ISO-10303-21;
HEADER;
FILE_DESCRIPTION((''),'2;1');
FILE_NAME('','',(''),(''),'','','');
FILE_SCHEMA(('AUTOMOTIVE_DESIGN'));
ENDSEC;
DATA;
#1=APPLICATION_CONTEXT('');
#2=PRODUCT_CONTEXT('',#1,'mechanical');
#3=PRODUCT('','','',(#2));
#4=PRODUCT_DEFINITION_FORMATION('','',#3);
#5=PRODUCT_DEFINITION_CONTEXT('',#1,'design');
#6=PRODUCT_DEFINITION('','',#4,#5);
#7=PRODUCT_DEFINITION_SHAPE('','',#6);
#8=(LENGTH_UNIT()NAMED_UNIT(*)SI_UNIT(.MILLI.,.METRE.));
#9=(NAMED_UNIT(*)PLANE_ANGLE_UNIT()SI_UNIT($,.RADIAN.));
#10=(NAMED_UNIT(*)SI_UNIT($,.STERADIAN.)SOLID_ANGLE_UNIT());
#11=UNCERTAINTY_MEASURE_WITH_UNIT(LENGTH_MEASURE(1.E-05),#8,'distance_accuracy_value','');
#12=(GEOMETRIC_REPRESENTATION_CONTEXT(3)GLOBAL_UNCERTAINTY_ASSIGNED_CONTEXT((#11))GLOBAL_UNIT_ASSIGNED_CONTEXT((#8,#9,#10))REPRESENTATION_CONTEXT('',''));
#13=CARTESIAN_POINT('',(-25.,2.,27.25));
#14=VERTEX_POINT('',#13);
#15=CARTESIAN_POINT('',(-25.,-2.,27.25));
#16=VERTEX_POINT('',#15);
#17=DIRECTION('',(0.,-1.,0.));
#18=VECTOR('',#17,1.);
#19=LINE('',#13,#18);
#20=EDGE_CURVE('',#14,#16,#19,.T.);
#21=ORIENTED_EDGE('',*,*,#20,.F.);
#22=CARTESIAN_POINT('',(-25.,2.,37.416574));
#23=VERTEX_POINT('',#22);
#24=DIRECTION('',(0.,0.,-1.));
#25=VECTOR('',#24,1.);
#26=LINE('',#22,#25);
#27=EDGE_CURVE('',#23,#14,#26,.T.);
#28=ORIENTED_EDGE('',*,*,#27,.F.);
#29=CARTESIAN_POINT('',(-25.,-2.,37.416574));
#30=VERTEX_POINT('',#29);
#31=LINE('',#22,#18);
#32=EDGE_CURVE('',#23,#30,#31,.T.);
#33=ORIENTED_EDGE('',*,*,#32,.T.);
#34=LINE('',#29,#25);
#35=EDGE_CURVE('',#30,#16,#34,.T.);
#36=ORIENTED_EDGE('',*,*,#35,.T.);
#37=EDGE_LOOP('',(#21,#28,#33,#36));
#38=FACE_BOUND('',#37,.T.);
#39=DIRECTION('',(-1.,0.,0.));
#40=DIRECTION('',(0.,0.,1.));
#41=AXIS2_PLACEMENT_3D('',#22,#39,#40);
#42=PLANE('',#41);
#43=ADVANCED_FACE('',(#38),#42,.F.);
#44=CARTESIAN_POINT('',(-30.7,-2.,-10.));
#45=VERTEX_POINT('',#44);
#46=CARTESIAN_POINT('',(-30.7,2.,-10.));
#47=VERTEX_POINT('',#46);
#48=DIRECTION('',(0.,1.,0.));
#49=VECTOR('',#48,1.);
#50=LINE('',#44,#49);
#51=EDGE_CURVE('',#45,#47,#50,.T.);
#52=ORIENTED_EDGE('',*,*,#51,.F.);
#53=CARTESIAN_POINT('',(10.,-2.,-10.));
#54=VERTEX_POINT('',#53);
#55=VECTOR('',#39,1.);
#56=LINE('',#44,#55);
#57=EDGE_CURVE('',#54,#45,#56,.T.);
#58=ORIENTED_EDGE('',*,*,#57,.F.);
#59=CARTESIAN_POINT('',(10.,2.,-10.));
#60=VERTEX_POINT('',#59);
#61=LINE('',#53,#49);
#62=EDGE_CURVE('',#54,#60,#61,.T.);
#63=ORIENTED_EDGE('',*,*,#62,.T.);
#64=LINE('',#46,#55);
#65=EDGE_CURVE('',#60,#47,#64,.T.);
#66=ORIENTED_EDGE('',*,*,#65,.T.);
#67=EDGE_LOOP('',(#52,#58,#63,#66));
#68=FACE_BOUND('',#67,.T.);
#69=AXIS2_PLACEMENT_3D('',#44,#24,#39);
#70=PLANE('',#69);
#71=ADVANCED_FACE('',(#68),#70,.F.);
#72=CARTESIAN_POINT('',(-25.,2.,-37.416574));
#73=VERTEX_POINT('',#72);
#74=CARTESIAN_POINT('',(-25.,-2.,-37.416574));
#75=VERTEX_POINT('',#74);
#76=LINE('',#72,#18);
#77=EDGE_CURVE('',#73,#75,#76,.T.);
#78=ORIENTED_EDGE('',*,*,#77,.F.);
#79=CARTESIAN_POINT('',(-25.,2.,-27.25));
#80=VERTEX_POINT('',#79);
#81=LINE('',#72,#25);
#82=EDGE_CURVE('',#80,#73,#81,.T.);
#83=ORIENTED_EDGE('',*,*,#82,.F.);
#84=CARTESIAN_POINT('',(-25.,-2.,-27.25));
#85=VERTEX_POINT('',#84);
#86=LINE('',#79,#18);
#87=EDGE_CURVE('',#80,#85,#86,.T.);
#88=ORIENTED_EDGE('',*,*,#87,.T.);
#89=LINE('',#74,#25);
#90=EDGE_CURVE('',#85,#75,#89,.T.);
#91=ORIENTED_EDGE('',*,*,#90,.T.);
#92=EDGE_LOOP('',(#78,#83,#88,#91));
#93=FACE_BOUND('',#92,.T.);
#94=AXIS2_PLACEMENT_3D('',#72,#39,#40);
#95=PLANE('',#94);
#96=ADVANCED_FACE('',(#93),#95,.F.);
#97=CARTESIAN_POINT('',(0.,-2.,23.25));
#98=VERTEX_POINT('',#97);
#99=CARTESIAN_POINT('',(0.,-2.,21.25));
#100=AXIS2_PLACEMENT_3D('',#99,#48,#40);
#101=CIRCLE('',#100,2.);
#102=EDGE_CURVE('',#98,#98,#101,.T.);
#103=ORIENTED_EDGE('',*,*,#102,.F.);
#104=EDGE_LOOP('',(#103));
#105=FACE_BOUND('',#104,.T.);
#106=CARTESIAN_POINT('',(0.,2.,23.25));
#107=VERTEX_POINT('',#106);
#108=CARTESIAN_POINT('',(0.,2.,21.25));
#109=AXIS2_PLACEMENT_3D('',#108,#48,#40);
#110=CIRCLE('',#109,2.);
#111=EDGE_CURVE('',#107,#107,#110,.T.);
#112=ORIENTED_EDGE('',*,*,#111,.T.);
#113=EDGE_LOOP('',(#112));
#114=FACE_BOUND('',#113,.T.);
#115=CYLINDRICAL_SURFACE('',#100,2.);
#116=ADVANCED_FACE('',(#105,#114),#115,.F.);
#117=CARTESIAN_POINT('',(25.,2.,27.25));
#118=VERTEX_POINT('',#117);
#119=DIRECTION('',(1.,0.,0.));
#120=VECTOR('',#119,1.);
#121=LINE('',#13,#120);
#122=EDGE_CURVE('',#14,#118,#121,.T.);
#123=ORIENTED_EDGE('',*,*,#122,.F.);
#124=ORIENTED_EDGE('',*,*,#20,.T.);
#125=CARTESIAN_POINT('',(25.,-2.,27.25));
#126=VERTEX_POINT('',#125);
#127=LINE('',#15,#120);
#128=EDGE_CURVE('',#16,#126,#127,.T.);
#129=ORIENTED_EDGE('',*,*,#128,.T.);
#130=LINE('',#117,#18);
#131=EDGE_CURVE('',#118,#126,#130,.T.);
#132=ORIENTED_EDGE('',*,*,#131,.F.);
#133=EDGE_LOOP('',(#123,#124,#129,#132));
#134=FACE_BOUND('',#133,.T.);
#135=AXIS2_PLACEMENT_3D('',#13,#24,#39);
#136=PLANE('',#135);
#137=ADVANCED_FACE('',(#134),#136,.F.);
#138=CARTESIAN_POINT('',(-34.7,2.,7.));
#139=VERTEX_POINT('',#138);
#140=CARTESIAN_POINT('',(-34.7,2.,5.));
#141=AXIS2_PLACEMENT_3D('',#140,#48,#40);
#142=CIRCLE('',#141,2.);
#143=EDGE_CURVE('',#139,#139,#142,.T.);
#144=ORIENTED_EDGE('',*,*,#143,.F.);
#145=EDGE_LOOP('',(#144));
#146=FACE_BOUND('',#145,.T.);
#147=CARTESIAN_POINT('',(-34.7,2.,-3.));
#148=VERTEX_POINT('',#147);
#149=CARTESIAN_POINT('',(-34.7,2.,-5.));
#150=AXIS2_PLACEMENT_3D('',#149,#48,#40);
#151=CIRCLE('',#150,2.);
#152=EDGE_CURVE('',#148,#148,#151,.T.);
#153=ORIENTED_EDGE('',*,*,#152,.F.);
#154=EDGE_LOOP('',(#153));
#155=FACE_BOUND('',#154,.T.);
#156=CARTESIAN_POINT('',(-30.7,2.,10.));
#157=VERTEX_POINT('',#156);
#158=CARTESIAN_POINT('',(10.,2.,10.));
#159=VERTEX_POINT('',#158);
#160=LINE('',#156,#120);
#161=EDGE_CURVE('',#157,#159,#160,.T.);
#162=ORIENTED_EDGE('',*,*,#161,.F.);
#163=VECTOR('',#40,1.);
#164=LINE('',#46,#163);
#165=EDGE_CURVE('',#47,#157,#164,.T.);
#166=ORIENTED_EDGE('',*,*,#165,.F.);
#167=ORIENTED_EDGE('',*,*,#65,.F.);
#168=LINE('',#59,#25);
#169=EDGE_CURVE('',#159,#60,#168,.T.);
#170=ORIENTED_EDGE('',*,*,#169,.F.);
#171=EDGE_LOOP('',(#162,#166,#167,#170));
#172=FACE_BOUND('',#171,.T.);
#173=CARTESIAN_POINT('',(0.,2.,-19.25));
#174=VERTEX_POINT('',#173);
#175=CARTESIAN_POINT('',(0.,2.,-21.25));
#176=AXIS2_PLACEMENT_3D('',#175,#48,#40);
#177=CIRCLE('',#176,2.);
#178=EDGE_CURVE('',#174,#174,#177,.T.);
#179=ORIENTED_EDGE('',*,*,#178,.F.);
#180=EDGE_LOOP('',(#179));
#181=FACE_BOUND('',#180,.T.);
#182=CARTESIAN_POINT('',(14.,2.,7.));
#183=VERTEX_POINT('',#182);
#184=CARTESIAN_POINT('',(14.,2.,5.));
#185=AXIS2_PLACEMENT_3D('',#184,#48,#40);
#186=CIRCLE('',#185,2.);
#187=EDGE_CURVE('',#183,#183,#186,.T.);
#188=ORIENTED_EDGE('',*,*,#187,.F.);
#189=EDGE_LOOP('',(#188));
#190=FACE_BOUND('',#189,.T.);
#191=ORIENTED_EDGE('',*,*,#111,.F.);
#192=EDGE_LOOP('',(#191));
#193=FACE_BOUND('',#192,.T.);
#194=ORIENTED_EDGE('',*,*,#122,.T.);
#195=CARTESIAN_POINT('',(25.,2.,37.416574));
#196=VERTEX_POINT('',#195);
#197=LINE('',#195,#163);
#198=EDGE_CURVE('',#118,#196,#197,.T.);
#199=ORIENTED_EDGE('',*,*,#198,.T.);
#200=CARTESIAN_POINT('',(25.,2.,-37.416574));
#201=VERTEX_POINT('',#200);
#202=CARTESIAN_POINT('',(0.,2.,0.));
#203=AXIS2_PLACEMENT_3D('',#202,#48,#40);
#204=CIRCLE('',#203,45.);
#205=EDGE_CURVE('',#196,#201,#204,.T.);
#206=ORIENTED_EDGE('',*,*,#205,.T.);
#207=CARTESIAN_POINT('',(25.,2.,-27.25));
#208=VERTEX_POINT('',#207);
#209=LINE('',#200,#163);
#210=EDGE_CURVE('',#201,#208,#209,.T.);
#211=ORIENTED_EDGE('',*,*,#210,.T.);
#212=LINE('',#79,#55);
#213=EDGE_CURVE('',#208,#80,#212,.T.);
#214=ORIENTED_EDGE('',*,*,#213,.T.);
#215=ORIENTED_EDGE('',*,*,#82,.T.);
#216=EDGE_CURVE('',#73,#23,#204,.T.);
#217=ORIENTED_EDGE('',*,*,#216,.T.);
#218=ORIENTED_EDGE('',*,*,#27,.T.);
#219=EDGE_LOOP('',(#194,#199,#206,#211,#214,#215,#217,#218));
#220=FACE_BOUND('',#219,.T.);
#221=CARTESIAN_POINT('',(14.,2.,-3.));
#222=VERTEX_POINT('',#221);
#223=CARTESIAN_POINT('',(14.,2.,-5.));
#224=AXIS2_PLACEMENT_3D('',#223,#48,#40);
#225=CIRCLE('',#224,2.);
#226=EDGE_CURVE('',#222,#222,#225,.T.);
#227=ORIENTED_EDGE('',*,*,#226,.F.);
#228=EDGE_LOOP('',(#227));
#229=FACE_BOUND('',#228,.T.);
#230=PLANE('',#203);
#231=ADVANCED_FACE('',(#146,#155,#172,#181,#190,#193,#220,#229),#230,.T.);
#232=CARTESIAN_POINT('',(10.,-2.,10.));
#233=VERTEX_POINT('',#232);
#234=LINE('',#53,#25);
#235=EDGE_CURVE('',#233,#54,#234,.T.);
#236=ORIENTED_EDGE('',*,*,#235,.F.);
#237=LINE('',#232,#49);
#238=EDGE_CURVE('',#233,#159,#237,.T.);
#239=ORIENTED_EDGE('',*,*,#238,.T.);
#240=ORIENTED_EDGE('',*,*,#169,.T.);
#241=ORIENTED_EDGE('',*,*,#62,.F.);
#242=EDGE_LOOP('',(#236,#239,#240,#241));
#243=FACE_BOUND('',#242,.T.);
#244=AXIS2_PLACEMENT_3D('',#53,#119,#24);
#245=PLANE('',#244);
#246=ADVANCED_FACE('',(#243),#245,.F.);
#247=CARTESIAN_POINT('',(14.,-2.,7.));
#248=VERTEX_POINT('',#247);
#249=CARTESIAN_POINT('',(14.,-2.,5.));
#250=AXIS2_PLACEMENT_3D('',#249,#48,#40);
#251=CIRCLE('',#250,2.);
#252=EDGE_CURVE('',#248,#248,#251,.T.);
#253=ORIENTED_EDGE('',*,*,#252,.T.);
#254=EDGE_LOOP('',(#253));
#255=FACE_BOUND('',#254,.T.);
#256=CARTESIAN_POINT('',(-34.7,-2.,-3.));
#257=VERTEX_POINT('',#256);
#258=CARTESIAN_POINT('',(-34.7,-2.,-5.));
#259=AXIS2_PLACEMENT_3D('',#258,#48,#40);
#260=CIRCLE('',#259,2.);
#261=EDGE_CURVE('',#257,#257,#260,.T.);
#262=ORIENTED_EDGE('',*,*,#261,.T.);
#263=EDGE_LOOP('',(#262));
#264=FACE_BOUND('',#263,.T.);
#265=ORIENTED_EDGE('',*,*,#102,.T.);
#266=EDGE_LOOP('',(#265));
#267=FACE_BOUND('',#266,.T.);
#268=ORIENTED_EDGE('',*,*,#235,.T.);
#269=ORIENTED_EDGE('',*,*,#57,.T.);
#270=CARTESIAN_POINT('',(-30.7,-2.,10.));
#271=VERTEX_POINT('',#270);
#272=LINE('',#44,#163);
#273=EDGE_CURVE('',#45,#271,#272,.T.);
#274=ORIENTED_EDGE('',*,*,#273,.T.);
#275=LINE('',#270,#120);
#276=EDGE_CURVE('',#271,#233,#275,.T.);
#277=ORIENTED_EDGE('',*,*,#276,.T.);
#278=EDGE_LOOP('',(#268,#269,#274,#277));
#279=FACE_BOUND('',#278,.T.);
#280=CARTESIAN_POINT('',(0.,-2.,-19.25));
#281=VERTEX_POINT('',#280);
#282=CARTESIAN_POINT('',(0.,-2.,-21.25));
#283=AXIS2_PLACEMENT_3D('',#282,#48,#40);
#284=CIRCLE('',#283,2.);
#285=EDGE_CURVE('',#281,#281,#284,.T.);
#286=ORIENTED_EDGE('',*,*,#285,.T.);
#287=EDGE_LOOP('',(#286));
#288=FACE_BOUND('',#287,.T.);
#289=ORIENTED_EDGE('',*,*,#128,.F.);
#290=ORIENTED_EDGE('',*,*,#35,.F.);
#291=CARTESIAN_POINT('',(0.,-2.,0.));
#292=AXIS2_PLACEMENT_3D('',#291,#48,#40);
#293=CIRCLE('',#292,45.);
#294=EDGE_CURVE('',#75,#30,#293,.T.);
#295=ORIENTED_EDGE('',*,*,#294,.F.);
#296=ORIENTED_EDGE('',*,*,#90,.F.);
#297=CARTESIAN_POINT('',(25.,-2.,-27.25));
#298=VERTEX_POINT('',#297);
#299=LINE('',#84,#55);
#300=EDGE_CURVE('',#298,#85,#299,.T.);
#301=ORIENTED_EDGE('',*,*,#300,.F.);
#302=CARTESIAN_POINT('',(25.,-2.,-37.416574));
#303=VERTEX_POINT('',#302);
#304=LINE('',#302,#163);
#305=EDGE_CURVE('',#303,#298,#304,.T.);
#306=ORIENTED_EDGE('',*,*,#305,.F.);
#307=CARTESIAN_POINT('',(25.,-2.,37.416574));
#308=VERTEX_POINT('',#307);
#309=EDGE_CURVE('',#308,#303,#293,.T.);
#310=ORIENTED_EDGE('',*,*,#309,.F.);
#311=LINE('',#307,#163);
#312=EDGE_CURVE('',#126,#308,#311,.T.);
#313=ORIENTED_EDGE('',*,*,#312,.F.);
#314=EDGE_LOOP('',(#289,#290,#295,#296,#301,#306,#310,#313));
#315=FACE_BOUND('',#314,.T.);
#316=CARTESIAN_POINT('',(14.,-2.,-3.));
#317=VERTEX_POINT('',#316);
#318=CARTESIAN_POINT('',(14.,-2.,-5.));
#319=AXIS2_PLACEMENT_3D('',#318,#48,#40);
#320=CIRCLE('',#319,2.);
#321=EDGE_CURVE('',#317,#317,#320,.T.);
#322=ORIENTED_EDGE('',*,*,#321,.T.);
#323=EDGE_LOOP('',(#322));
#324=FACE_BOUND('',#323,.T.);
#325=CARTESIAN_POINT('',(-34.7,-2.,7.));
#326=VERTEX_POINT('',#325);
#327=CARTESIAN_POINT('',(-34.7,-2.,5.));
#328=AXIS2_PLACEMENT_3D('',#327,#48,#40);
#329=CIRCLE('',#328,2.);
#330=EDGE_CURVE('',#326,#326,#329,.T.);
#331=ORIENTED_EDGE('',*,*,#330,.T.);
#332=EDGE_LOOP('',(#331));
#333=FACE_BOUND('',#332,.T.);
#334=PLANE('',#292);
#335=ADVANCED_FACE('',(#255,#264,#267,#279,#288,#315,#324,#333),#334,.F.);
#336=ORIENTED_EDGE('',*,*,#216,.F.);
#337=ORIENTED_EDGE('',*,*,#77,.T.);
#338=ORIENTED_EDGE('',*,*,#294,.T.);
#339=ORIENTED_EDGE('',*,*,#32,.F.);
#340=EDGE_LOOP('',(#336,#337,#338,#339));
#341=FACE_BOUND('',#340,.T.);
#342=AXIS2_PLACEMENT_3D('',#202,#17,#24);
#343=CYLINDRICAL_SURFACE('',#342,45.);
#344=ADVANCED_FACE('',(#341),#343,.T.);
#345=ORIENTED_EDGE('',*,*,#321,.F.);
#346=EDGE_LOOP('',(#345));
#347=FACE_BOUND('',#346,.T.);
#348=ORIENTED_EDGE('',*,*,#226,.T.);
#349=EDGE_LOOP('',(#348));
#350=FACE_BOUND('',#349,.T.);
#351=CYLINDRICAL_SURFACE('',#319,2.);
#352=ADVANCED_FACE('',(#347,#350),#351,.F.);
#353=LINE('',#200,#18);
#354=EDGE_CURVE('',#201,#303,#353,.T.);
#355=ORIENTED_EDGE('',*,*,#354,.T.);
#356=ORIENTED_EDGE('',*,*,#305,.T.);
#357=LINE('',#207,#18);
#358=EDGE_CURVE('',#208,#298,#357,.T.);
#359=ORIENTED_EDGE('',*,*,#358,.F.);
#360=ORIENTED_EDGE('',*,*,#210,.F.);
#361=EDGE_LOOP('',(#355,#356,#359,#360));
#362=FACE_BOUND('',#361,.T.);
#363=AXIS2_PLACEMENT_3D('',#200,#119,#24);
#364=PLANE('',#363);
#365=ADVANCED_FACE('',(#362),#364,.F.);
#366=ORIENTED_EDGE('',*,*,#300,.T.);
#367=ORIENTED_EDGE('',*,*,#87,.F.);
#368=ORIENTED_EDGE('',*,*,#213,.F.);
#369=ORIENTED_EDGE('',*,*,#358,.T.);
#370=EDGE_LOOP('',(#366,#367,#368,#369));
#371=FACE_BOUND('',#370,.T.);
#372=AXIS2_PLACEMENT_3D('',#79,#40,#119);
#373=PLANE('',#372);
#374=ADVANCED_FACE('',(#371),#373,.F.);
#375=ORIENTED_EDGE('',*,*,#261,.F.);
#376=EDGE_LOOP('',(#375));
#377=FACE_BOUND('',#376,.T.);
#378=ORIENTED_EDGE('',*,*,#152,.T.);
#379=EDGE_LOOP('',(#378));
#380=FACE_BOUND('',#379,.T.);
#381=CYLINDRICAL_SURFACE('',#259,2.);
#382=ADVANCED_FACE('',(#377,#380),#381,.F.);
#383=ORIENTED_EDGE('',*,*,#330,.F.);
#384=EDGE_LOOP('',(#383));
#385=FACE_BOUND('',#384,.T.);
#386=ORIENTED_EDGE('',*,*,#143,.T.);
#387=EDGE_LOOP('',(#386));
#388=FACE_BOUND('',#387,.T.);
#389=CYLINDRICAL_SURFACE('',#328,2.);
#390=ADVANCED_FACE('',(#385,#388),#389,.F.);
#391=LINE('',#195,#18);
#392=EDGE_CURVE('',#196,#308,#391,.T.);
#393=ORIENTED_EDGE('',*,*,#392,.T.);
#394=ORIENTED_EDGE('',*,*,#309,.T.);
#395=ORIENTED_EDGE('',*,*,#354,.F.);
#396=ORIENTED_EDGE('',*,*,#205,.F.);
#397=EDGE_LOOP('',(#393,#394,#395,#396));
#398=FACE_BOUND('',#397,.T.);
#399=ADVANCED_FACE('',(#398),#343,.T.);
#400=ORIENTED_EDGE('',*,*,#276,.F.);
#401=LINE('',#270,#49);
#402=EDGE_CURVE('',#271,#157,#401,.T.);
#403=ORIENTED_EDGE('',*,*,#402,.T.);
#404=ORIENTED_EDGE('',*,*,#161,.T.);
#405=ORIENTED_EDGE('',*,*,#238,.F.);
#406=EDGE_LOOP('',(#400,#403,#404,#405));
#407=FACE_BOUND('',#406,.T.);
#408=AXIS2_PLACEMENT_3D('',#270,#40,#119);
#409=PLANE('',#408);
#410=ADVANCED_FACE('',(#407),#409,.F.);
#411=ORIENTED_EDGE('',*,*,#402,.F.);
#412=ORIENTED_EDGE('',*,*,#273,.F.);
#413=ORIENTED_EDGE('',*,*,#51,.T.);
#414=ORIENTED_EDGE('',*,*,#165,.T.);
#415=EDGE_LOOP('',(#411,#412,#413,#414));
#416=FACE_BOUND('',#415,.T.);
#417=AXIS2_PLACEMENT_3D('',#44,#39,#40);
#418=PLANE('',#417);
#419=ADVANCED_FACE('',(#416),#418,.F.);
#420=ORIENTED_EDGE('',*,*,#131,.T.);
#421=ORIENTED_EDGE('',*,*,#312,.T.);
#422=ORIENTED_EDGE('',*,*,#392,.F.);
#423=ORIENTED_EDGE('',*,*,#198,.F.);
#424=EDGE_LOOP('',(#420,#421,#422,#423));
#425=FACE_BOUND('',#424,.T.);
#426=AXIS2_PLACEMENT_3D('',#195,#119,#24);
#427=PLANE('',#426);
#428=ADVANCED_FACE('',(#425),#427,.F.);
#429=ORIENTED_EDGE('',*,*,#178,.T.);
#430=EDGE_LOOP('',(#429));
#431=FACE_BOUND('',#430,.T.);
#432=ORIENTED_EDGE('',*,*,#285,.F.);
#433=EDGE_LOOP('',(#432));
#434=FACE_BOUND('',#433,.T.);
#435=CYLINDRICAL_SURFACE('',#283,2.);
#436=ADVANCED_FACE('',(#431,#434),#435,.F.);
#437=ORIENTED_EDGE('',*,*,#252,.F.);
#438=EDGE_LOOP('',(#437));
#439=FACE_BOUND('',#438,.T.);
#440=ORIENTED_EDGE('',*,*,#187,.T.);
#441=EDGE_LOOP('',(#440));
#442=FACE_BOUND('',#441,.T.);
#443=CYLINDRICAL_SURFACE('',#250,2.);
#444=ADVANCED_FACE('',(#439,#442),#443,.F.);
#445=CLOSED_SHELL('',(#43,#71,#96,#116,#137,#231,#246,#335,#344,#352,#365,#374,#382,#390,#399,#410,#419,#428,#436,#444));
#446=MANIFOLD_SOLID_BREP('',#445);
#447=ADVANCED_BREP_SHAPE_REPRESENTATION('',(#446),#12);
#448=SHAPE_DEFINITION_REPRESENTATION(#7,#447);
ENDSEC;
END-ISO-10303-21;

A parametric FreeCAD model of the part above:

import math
import FreeCAD as App
import Part
import Sketcher


def add_polygon(sketch, points):
    """Adds a closed chain of lines whose ends are joined by coincident constraints."""
    first, n = sketch.GeometryCount, len(points)
    for a, b in zip(points, points[1:] + points[:1]):
        sketch.addGeometry(Part.LineSegment(App.Vector(*a, 0), App.Vector(*b, 0)), False)
    for i in range(n):
        sketch.addConstraint(Sketcher.Constraint("Coincident", first + i, 2, first + (i + 1) % n, 1))

doc = App.newDocument("Part")
body = doc.addObject("PartDesign::Body", "Body")

# Sketch on XZ plane
sketch1 = body.newObject("Sketcher::SketchObject", "Sketch")
sketch1.AttachmentSupport = (doc.getObject("XZ_Plane"), [""])
sketch1.MapMode = "FlatFace"
sketch1.addGeometry(Part.LineSegment(App.Vector(-25, -27.25, 0), App.Vector(-25, -37.416574, 0)), False)
sketch1.addGeometry(Part.ArcOfCircle(Part.Circle(App.Vector(0, 0, 0), App.Vector(0, 0, 1), 45), math.radians(123.748989), math.radians(236.251011)), False)
sketch1.addGeometry(Part.LineSegment(App.Vector(-25, 37.416574, 0), App.Vector(-25, 27.25, 0)), False)
sketch1.addGeometry(Part.LineSegment(App.Vector(-25, 27.25, 0), App.Vector(25, 27.25, 0)), False)
sketch1.addGeometry(Part.LineSegment(App.Vector(25, 27.25, 0), App.Vector(25, 37.416574, 0)), False)
sketch1.addGeometry(Part.ArcOfCircle(Part.Circle(App.Vector(0, 0, 0), App.Vector(0, 0, 1), 45), math.radians(-56.251011), math.radians(56.251011)), False)
sketch1.addGeometry(Part.LineSegment(App.Vector(25, -37.416574, 0), App.Vector(25, -27.25, 0)), False)
sketch1.addGeometry(Part.LineSegment(App.Vector(25, -27.25, 0), App.Vector(-25, -27.25, 0)), False)
sketch1.addConstraint(Sketcher.Constraint("Coincident", 0, 2, 1, 2))
sketch1.addConstraint(Sketcher.Constraint("Coincident", 1, 1, 2, 1))
sketch1.addConstraint(Sketcher.Constraint("Coincident", 2, 2, 3, 1))
sketch1.addConstraint(Sketcher.Constraint("Coincident", 3, 2, 4, 1))
sketch1.addConstraint(Sketcher.Constraint("Coincident", 4, 2, 5, 2))
sketch1.addConstraint(Sketcher.Constraint("Coincident", 5, 1, 6, 1))
sketch1.addConstraint(Sketcher.Constraint("Coincident", 6, 2, 7, 1))
sketch1.addConstraint(Sketcher.Constraint("Coincident", 7, 2, 0, 1))
sketch1.addConstraint(Sketcher.Constraint("Vertical", 0))
sketch1.addConstraint(Sketcher.Constraint("Vertical", 2))
sketch1.addConstraint(Sketcher.Constraint("Horizontal", 3))
sketch1.addConstraint(Sketcher.Constraint("Vertical", 4))
sketch1.addConstraint(Sketcher.Constraint("Vertical", 6))
sketch1.addConstraint(Sketcher.Constraint("Horizontal", 7))
sketch1.addConstraint(Sketcher.Constraint("Coincident", 1, 3, -1, 1))
sketch1.addConstraint(Sketcher.Constraint("Coincident", 5, 3, -1, 1))
sketch1.addConstraint(Sketcher.Constraint("Equal", 1, 5))
sketch1.addConstraint(Sketcher.Constraint("Symmetric", 2, 2, 6, 2, -1, 1))
sketch1.addConstraint(Sketcher.Constraint("Horizontal", 1, 1, 4, 2))
sketch1.addConstraint(Sketcher.Constraint("Horizontal", 0, 2, 5, 1))
sketch1.addConstraint(Sketcher.Constraint("Radius", 1, 45.0))
sketch1.addConstraint(Sketcher.Constraint("DistanceX", 3, 1, 3, 2, 50.0))
sketch1.addConstraint(Sketcher.Constraint("DistanceY", 6, 2, 3, 2, 54.5))
pad1 = body.newObject("PartDesign::Pad", "Pad")
pad1.Profile = sketch1
pad1.Length = 4
pad1.Midplane = True

# Sketch on XZ plane
sketch2 = body.newObject("Sketcher::SketchObject", "Sketch001")
sketch2.AttachmentSupport = (doc.getObject("XZ_Plane"), [""])
sketch2.MapMode = "FlatFace"
sketch2.AttachmentOffset = App.Placement(App.Vector(0, 0, -2), App.Rotation())
sketch2.addGeometry(Part.Circle(App.Vector(-34.7, -5, 0), App.Vector(0, 0, 1), 2), False)  # 0
sketch2.addGeometry(Part.Circle(App.Vector(-34.7, 5, 0), App.Vector(0, 0, 1), 2), False)  # 1
sketch2.addGeometry(Part.Circle(App.Vector(14, -5, 0), App.Vector(0, 0, 1), 2), False)  # 2
sketch2.addGeometry(Part.Circle(App.Vector(14, 5, 0), App.Vector(0, 0, 1), 2), False)  # 3
sketch2.addGeometry(Part.Circle(App.Vector(0, -21.25, 0), App.Vector(0, 0, 1), 2), False)  # 4
sketch2.addGeometry(Part.Circle(App.Vector(0, 21.25, 0), App.Vector(0, 0, 1), 2), False)  # 5
add_polygon(sketch2, [(-30.7, -10), (-30.7, 10), (10, 10), (10, -10)])  # lines 6-9
sketch2.addConstraint(Sketcher.Constraint("Vertical", 6))
sketch2.addConstraint(Sketcher.Constraint("Horizontal", 7))
sketch2.addConstraint(Sketcher.Constraint("Vertical", 8))
sketch2.addConstraint(Sketcher.Constraint("Horizontal", 9))
sketch2.addConstraint(Sketcher.Constraint("Equal", 0, 1))
sketch2.addConstraint(Sketcher.Constraint("Equal", 1, 2))
sketch2.addConstraint(Sketcher.Constraint("Equal", 2, 3))
sketch2.addConstraint(Sketcher.Constraint("Equal", 3, 4))
sketch2.addConstraint(Sketcher.Constraint("Equal", 4, 5))
sketch2.addConstraint(Sketcher.Constraint("Symmetric", 4, 3, 5, 3, -1, 1))
sketch2.addConstraint(Sketcher.Constraint("Symmetric", 0, 3, 1, 3, -1))
sketch2.addConstraint(Sketcher.Constraint("Symmetric", 2, 3, 3, 3, -1))
sketch2.addConstraint(Sketcher.Constraint("PointOnObject", 4, 3, -2))
sketch2.addConstraint(Sketcher.Constraint("Horizontal", 0, 3, 2, 3))
sketch2.addConstraint(Sketcher.Constraint("Diameter", 0, 4.0))
sketch2.addConstraint(Sketcher.Constraint("DistanceY", 6, 1, 6, 2, 20.0))
sketch2.addConstraint(Sketcher.Constraint("DistanceX", 7, 1, 7, 2, 40.7))
sketch2.addConstraint(Sketcher.Constraint("DistanceY", 0, 3, -1, 1, 5.0))
sketch2.addConstraint(Sketcher.Constraint("DistanceX", -1, 1, 2, 3, 14.0))
sketch2.addConstraint(Sketcher.Constraint("DistanceY", -1, 1, 6, 2, 10.0))
sketch2.addConstraint(Sketcher.Constraint("DistanceX", -1, 1, 7, 2, 10.0))
sketch2.addConstraint(Sketcher.Constraint("DistanceX", 1, 3, 6, 2, 4.0))
sketch2.addConstraint(Sketcher.Constraint("DistanceY", 4, 3, 5, 3, 42.5))
pocket1 = body.newObject("PartDesign::Pocket", "Pocket")
pocket1.Profile = sketch2
pocket1.Type = "ThroughAll"
pocket1.Reversed = True

doc.recompute()
